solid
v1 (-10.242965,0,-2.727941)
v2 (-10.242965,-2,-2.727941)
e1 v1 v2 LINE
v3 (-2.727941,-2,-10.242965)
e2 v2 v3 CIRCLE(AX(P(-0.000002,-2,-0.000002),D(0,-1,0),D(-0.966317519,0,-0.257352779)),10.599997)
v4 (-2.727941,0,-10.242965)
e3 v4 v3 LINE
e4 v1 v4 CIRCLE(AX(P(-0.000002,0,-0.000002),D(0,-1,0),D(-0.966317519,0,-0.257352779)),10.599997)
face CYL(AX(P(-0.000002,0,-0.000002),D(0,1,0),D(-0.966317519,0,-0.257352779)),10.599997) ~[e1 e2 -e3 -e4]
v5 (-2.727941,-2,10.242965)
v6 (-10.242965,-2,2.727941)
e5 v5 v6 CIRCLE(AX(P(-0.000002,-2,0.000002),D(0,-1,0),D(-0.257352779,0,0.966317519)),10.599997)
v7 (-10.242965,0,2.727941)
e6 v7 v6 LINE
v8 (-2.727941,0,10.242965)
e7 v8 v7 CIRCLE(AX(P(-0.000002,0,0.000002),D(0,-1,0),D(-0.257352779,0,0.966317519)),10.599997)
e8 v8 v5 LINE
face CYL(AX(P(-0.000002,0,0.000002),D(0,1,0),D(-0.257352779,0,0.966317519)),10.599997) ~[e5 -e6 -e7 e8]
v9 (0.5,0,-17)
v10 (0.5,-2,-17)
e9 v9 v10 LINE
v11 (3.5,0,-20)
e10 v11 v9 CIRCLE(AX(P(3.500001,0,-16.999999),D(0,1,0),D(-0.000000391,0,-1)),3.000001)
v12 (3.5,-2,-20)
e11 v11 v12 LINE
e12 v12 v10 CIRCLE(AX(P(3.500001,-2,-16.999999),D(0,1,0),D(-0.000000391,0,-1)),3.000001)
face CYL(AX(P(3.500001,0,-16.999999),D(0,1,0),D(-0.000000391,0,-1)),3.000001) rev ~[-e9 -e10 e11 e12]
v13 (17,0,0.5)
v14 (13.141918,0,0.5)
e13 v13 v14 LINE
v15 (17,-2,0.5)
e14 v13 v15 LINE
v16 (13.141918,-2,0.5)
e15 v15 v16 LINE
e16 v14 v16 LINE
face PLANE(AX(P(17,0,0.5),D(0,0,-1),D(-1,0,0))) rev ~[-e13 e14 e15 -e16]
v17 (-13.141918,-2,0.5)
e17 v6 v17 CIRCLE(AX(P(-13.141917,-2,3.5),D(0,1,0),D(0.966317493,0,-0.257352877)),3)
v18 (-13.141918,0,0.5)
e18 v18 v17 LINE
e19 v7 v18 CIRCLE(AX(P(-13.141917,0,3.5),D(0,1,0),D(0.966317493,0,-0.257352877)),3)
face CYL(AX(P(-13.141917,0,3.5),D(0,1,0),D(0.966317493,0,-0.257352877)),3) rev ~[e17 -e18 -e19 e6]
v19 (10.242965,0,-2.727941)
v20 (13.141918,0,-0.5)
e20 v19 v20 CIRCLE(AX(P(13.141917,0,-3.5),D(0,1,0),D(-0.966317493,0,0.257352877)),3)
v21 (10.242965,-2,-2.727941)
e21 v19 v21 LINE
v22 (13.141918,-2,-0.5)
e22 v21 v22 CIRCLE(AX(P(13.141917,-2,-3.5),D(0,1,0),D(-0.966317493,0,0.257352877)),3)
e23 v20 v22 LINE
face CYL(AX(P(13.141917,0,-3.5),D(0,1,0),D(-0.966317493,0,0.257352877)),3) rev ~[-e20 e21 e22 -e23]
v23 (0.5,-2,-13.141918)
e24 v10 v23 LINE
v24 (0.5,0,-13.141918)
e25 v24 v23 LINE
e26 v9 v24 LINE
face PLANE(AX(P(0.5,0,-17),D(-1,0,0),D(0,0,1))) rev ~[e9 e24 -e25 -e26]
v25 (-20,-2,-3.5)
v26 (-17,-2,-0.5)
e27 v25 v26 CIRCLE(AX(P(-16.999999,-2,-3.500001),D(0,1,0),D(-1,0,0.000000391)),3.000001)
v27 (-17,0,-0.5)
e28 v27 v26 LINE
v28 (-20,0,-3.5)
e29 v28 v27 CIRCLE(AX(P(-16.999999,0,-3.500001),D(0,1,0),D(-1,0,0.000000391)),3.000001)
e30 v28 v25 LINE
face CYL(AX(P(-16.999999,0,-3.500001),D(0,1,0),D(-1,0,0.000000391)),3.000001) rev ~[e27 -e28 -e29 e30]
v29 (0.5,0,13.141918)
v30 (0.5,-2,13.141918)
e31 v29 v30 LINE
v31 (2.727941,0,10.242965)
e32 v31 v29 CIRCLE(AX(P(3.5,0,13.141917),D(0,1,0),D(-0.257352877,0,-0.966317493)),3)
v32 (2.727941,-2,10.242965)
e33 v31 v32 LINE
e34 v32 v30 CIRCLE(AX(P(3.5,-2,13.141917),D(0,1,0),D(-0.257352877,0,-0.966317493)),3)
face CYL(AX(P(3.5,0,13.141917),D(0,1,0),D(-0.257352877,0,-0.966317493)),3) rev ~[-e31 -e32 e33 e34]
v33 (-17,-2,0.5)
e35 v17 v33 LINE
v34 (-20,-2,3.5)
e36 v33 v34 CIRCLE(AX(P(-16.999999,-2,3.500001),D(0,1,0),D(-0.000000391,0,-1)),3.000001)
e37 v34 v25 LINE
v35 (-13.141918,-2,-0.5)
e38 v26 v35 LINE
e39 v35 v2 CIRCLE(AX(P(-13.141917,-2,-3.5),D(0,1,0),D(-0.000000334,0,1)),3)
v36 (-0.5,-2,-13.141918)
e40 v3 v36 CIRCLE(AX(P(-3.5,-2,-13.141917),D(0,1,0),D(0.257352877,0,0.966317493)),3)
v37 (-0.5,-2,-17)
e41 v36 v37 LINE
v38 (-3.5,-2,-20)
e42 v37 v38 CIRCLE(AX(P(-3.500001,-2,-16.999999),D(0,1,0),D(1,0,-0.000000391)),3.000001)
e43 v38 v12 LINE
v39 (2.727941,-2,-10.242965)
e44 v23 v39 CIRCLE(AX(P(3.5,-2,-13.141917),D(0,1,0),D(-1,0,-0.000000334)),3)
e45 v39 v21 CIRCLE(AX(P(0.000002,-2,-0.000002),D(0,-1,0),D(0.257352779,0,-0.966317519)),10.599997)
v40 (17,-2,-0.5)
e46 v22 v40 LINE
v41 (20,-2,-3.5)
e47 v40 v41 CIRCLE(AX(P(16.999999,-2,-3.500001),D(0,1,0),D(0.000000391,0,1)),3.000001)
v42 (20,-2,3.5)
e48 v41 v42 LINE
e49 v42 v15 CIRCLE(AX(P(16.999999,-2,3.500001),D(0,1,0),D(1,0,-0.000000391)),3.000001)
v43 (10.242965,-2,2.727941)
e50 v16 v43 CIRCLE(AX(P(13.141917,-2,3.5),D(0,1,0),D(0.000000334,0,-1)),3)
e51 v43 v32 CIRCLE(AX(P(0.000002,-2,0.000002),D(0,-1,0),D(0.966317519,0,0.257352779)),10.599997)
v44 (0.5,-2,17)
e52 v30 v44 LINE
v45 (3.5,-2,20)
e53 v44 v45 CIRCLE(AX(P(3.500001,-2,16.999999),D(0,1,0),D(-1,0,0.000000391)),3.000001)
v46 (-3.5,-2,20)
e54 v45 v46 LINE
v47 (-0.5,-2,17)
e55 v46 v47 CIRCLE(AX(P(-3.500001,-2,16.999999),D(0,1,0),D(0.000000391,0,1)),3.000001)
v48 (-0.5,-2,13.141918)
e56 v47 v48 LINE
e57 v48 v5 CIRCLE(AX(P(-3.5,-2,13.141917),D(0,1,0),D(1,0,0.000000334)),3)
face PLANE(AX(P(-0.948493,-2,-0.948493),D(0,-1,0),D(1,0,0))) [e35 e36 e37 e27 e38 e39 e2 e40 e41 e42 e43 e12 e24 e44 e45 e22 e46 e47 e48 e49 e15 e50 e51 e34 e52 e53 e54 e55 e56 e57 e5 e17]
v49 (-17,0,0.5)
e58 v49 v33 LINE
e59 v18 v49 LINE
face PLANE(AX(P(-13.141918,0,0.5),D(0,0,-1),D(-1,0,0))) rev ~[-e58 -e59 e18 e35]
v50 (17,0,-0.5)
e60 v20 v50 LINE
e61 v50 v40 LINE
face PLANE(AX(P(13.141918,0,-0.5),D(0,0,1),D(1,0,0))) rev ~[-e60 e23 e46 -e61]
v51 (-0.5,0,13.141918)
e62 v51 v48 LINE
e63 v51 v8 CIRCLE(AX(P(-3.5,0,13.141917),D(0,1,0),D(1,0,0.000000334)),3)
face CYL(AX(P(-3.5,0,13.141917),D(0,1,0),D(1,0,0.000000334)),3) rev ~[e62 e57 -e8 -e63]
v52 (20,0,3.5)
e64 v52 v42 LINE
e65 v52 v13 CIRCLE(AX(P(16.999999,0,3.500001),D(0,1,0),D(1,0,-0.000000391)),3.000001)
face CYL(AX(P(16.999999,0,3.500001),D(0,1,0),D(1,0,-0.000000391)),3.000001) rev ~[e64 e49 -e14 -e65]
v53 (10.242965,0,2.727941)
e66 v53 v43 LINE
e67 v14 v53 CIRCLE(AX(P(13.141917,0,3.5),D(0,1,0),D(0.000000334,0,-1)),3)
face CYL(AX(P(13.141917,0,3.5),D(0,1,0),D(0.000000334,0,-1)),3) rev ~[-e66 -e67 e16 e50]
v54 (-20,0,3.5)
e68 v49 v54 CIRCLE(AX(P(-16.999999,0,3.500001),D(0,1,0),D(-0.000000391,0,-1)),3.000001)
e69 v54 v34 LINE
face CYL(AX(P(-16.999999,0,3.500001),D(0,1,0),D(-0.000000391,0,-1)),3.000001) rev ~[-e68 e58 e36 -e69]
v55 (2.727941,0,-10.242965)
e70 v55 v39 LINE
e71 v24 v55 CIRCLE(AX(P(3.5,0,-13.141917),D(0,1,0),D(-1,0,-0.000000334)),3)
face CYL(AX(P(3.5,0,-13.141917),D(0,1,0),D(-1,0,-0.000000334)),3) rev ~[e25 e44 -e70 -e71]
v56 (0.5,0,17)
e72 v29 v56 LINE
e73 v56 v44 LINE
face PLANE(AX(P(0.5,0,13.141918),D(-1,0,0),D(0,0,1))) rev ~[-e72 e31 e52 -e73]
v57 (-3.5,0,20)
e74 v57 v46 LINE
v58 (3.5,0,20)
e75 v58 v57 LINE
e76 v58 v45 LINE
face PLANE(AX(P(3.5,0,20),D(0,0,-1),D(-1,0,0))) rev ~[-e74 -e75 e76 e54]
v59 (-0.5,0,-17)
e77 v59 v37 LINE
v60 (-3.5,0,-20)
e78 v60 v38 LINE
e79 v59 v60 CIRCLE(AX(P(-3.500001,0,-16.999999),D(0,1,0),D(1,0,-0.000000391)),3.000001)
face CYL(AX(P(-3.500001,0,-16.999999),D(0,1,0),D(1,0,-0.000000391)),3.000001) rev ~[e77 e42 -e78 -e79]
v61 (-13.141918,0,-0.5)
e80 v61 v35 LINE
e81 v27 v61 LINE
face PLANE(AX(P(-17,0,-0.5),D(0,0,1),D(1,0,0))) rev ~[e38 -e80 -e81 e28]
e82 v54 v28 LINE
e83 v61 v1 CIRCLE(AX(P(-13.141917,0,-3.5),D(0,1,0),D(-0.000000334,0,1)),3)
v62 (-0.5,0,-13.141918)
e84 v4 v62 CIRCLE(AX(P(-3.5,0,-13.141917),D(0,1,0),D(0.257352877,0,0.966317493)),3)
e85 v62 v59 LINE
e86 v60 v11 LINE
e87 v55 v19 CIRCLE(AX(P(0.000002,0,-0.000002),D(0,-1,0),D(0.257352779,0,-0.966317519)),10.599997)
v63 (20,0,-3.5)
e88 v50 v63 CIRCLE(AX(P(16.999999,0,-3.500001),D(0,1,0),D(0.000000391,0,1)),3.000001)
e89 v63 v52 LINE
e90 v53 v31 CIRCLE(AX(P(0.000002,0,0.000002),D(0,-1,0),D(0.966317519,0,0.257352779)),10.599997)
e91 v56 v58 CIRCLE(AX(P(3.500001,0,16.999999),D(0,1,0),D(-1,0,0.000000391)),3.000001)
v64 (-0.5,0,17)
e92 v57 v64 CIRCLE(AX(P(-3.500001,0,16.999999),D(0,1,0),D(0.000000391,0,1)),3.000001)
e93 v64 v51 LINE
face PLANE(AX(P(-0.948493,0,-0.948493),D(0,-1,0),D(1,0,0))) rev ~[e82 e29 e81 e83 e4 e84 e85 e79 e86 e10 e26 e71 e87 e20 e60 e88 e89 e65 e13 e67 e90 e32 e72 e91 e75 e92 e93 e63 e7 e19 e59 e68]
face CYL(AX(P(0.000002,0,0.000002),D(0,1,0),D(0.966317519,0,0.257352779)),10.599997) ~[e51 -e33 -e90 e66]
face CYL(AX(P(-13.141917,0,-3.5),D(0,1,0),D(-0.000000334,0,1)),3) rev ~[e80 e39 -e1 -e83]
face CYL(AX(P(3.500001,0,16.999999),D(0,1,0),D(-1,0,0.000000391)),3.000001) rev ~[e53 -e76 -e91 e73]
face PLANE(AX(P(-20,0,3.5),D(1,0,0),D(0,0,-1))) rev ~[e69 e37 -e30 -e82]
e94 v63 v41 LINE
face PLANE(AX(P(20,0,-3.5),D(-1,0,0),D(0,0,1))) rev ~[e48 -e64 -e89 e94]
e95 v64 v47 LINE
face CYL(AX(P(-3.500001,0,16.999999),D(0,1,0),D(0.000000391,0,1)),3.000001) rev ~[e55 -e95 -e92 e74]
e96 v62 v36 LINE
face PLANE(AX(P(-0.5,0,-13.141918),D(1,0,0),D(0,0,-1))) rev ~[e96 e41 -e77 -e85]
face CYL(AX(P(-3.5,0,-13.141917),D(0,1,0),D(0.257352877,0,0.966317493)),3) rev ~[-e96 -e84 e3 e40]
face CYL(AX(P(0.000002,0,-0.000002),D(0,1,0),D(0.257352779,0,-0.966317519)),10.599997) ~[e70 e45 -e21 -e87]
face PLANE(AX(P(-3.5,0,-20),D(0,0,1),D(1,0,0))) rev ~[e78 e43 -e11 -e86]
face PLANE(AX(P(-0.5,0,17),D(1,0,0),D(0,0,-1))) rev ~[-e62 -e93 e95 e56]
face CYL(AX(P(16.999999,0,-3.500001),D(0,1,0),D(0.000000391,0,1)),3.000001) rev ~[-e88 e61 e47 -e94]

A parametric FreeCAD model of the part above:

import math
import FreeCAD as App
import Part
import Sketcher

doc = App.newDocument("Part")
body = doc.addObject("PartDesign::Body", "Body")

# Sketch on XZ plane
sketch1 = body.newObject("Sketcher::SketchObject", "Sketch")
sketch1.AttachmentSupport = (doc.getObject("XZ_Plane"), [""])
sketch1.MapMode = "FlatFace"
sketch1.addGeometry([
    Part.ArcOfCircle(Part.Circle(App.Vector(-13.1, -3.5, 0), App.Vector(0, 0, 1), 3), math.radians(15), math.radians(90)),  # 0
    Part.ArcOfCircle(Part.Circle(App.Vector(0, 0, 0), App.Vector(0, 0, 1), 10.6), math.radians(-165), math.radians(-105)),  # 1
    Part.ArcOfCircle(Part.Circle(App.Vector(-3.5, -13.1, 0), App.Vector(0, 0, 1), 3), math.radians(0), math.radians(75)),  # 2
    Part.LineSegment(App.Vector(-0.5, -13.1, 0), App.Vector(-0.5, -17, 0)),  # 3
    Part.ArcOfCircle(Part.Circle(App.Vector(-3.5, -17, 0), App.Vector(0, 0, 1), 3), math.radians(-90), math.radians(0)),  # 4
    Part.LineSegment(App.Vector(-3.5, -20, 0), App.Vector(3.5, -20, 0)),  # 5
    Part.ArcOfCircle(Part.Circle(App.Vector(3.5, -17, 0), App.Vector(0, 0, 1), 3), math.radians(-180), math.radians(-90)),  # 6
    Part.LineSegment(App.Vector(0.5, -17, 0), App.Vector(0.5, -13.1, 0)),  # 7
    Part.ArcOfCircle(Part.Circle(App.Vector(3.5, -13.1, 0), App.Vector(0, 0, 1), 3), math.radians(105), math.radians(180)),  # 8
    Part.ArcOfCircle(Part.Circle(App.Vector(0, 0, 0), App.Vector(0, 0, 1), 10.6), math.radians(-75), math.radians(-15)),  # 9
    Part.ArcOfCircle(Part.Circle(App.Vector(13.1, -3.5, 0), App.Vector(0, 0, 1), 3), math.radians(90), math.radians(165)),  # 10
    Part.LineSegment(App.Vector(13.1, -0.5, 0), App.Vector(17, -0.5, 0)),  # 11
    Part.ArcOfCircle(Part.Circle(App.Vector(17, -3.5, 0), App.Vector(0, 0, 1), 3), math.radians(0), math.radians(90)),  # 12
    Part.LineSegment(App.Vector(20, -3.5, 0), App.Vector(20, 3.5, 0)),  # 13
    Part.ArcOfCircle(Part.Circle(App.Vector(17, 3.5, 0), App.Vector(0, 0, 1), 3), math.radians(-90), math.radians(0)),  # 14
    Part.LineSegment(App.Vector(17, 0.5, 0), App.Vector(13.1, 0.5, 0)),  # 15
    Part.ArcOfCircle(Part.Circle(App.Vector(13.1, 3.5, 0), App.Vector(0, 0, 1), 3), math.radians(-165), math.radians(-90)),  # 16
    Part.ArcOfCircle(Part.Circle(App.Vector(0, 0, 0), App.Vector(0, 0, 1), 10.6), math.radians(15), math.radians(75)),  # 17
    Part.ArcOfCircle(Part.Circle(App.Vector(3.5, 13.1, 0), App.Vector(0, 0, 1), 3), math.radians(180), math.radians(255)),  # 18
    Part.LineSegment(App.Vector(0.5, 13.1, 0), App.Vector(0.5, 17, 0)),  # 19
    Part.ArcOfCircle(Part.Circle(App.Vector(3.5, 17, 0), App.Vector(0, 0, 1), 3), math.radians(90), math.radians(180)),  # 20
    Part.LineSegment(App.Vector(3.5, 20, 0), App.Vector(-3.5, 20, 0)),  # 21
    Part.ArcOfCircle(Part.Circle(App.Vector(-3.5, 17, 0), App.Vector(0, 0, 1), 3), math.radians(0), math.radians(90)),  # 22
    Part.LineSegment(App.Vector(-0.5, 17, 0), App.Vector(-0.5, 13.1, 0)),  # 23
    Part.ArcOfCircle(Part.Circle(App.Vector(-3.5, 13.1, 0), App.Vector(0, 0, 1), 3), math.radians(-75), math.radians(0)),  # 24
    Part.ArcOfCircle(Part.Circle(App.Vector(0, 0, 0), App.Vector(0, 0, 1), 10.6), math.radians(105), math.radians(165)),  # 25
    Part.ArcOfCircle(Part.Circle(App.Vector(-13.1, 3.5, 0), App.Vector(0, 0, 1), 3), math.radians(-90), math.radians(-15)),  # 26
    Part.LineSegment(App.Vector(-13.1, 0.5, 0), App.Vector(-17, 0.5, 0)),  # 27
    Part.ArcOfCircle(Part.Circle(App.Vector(-17, 3.5, 0), App.Vector(0, 0, 1), 3), math.radians(-180), math.radians(-90)),  # 28
    Part.LineSegment(App.Vector(-20, 3.5, 0), App.Vector(-20, -3.5, 0)),  # 29
    Part.ArcOfCircle(Part.Circle(App.Vector(-17, -3.5, 0), App.Vector(0, 0, 1), 3), math.radians(90), math.radians(180)),  # 30
    Part.LineSegment(App.Vector(-17, -0.5, 0), App.Vector(-13.1, -0.5, 0)),  # 31
], False)
sketch1.addConstraint([
    Sketcher.Constraint("Tangent", 0, 1, 1, 1),
    Sketcher.Constraint("Tangent", 1, 2, 2, 2),
    Sketcher.Constraint("Tangent", 2, 1, 3, 1),
    Sketcher.Constraint("Tangent", 3, 2, 4, 2),
    Sketcher.Constraint("Tangent", 4, 1, 5, 1),
    Sketcher.Constraint("Tangent", 5, 2, 6, 2),
    Sketcher.Constraint("Tangent", 6, 1, 7, 1),
    Sketcher.Constraint("Tangent", 7, 2, 8, 2),
    Sketcher.Constraint("Tangent", 8, 1, 9, 1),
    Sketcher.Constraint("Tangent", 9, 2, 10, 2),
    Sketcher.Constraint("Tangent", 10, 1, 11, 1),
    Sketcher.Constraint("Tangent", 11, 2, 12, 2),
    Sketcher.Constraint("Tangent", 12, 1, 13, 1),
    Sketcher.Constraint("Tangent", 13, 2, 14, 2),
    Sketcher.Constraint("Tangent", 14, 1, 15, 1),
    Sketcher.Constraint("Tangent", 15, 2, 16, 2),
    Sketcher.Constraint("Tangent", 16, 1, 17, 1),
    Sketcher.Constraint("Tangent", 17, 2, 18, 2),
    Sketcher.Constraint("Tangent", 18, 1, 19, 1),
    Sketcher.Constraint("Tangent", 19, 2, 20, 2),
    Sketcher.Constraint("Tangent", 20, 1, 21, 1),
    Sketcher.Constraint("Tangent", 21, 2, 22, 2),
    Sketcher.Constraint("Tangent", 22, 1, 23, 1),
    Sketcher.Constraint("Tangent", 23, 2, 24, 2),
    Sketcher.Constraint("Tangent", 24, 1, 25, 1),
    Sketcher.Constraint("Tangent", 25, 2, 26, 2),
    Sketcher.Constraint("Tangent", 26, 1, 27, 1),
    Sketcher.Constraint("Tangent", 27, 2, 28, 2),
    Sketcher.Constraint("Tangent", 28, 1, 29, 1),
    Sketcher.Constraint("Tangent", 29, 2, 30, 2),
    Sketcher.Constraint("Tangent", 30, 1, 31, 1),
    Sketcher.Constraint("Tangent", 31, 2, 0, 2),
    Sketcher.Constraint("Vertical", 3),
    Sketcher.Constraint("Horizontal", 5),
    Sketcher.Constraint("Vertical", 7),
    Sketcher.Constraint("Horizontal", 11),
    Sketcher.Constraint("Vertical", 13),
    Sketcher.Constraint("Horizontal", 15),
    Sketcher.Constraint("Vertical", 19),
    Sketcher.Constraint("Horizontal", 21),
    Sketcher.Constraint("Vertical", 23),
    Sketcher.Constraint("Horizontal", 27),
    Sketcher.Constraint("Vertical", 29),
    Sketcher.Constraint("Horizontal", 31),
    Sketcher.Constraint("Coincident", 1, 3, -1, 1),
    Sketcher.Constraint("Coincident", 9, 3, -1, 1),
    Sketcher.Constraint("Coincident", 17, 3, -1, 1),
    Sketcher.Constraint("Coincident", 25, 3, -1, 1),
    Sketcher.Constraint("Equal", 0, 2),
    Sketcher.Constraint("Equal", 2, 4),
    Sketcher.Constraint("Equal", 4, 6),
    Sketcher.Constraint("Equal", 6, 8),
    Sketcher.Constraint("Equal", 1, 9),
    Sketcher.Constraint("Equal", 8, 10),
    Sketcher.Constraint("Equal", 10, 12),
    Sketcher.Constraint("Equal", 12, 14),
    Sketcher.Constraint("Equal", 14, 16),
    Sketcher.Constraint("Equal", 9, 17),
    Sketcher.Constraint("Equal", 16, 18),
    Sketcher.Constraint("Equal", 18, 20),
    Sketcher.Constraint("Equal", 20, 22),
    Sketcher.Constraint("Equal", 22, 24),
    Sketcher.Constraint("Equal", 17, 25),
    Sketcher.Constraint("Equal", 24, 26),
    Sketcher.Constraint("Equal", 26, 28),
    Sketcher.Constraint("Equal", 28, 30),
    Sketcher.Constraint("Symmetric", 4, 3, 20, 3, -1, 1),
    Sketcher.Constraint("Symmetric", 12, 3, 28, 3, -1, 1),
    Sketcher.Constraint("Horizontal", 2, 3, 8, 3),
    Sketcher.Constraint("Horizontal", 0, 3, 10, 3),
    Sketcher.Constraint("Horizontal", 18, 3, 24, 3),
    Sketcher.Constraint("Horizontal", 16, 3, 26, 3),
    Sketcher.Constraint("Equal", 31, 3),
    Sketcher.Constraint("Equal", 21, 13),
    Sketcher.Constraint("Radius", 0, 3.0),
    Sketcher.Constraint("DistanceX", 5, 1, 5, 2, 7.0),
    Sketcher.Constraint("DistanceY", 4, 3, -1, 1, 16.999999),
    Sketcher.Constraint("Radius", 1, 10.599997),
])
pad1 = body.newObject("PartDesign::Pad", "Pad")
pad1.Profile = sketch1
pad1.Length = 2

doc.recompute()
